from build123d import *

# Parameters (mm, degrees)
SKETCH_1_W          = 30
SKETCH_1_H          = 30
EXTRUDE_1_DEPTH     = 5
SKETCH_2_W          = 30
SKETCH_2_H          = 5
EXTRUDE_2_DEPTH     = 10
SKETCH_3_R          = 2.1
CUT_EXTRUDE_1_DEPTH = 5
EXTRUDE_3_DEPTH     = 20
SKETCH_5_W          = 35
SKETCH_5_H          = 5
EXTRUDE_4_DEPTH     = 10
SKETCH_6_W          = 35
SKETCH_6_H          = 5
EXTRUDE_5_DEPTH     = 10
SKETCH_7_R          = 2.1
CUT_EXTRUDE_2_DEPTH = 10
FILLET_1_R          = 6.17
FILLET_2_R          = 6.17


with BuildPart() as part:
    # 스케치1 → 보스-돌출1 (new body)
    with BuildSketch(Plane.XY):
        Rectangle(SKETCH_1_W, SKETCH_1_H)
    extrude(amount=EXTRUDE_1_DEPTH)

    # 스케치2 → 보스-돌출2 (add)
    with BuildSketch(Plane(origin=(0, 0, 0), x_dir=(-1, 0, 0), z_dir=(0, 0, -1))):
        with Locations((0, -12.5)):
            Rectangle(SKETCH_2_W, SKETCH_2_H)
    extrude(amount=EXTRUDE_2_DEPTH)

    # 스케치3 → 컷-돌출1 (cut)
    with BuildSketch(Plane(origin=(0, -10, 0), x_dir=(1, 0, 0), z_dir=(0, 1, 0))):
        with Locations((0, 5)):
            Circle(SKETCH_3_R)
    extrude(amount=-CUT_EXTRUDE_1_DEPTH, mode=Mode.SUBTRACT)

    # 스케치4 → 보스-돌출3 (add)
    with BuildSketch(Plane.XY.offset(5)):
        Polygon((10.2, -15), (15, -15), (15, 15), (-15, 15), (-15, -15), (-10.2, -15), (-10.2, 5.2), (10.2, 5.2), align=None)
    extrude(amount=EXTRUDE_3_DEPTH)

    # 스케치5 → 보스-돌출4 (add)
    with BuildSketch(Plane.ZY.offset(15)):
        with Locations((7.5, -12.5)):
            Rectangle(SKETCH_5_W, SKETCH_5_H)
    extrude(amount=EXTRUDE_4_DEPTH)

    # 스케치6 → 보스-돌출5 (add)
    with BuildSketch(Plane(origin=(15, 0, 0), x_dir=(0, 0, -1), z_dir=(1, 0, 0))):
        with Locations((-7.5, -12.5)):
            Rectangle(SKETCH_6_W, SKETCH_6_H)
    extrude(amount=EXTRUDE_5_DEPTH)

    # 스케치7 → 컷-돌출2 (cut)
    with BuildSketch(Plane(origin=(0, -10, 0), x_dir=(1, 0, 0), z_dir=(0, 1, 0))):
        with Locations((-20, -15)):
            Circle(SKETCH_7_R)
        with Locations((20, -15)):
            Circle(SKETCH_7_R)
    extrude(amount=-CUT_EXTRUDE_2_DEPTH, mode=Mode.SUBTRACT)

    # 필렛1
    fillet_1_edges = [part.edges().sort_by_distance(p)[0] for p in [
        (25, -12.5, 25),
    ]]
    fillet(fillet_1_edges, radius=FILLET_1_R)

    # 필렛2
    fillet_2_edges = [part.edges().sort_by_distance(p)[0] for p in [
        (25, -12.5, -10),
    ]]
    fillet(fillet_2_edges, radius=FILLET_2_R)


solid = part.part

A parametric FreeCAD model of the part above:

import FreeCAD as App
import Part
import Sketcher
from FreeCAD import Vector
Q = App.Units.Quantity


def edges_at(feature, points):
    """Names of the edges that pass closest to the given points."""
    edges = feature.Shape.Edges
    near = lambda p: min(range(len(edges)), key=lambda i: edges[i].distToShape(Part.Vertex(*p))[0])
    return sorted({f"Edge{near(p) + 1}" for p in points})

doc = App.newDocument("Part")
body = doc.addObject("PartDesign::Body", "Body")

# Sketch on XY plane
sketch1 = doc.addObject("Sketcher::SketchObject", "Sketch")
body.addObject(sketch1)
sketch1.AttachmentSupport = (doc.XY_Plane, [""])
sketch1.MapMode = "FlatFace"
sketch1.addGeometry(Part.LineSegment(Vector(-15, 15, 0), Vector(-15, -15, 0)), False)
sketch1.addGeometry(Part.LineSegment(Vector(-15, -15, 0), Vector(15, -15, 0)), False)
sketch1.addGeometry(Part.LineSegment(Vector(15, -15, 0), Vector(15, 15, 0)), False)
sketch1.addGeometry(Part.LineSegment(Vector(15, 15, 0), Vector(-15, 15, 0)), False)
sketch1.addConstraint(Sketcher.Constraint("Coincident", 0, 2, 1, 1))
sketch1.addConstraint(Sketcher.Constraint("Coincident", 1, 2, 2, 1))
sketch1.addConstraint(Sketcher.Constraint("Coincident", 2, 2, 3, 1))
sketch1.addConstraint(Sketcher.Constraint("Coincident", 3, 2, 0, 1))
sketch1.addConstraint(Sketcher.Constraint("Vertical", 0))
sketch1.addConstraint(Sketcher.Constraint("Horizontal", 1))
sketch1.addConstraint(Sketcher.Constraint("Vertical", 2))
sketch1.addConstraint(Sketcher.Constraint("Horizontal", 3))
sketch1.addConstraint(Sketcher.Constraint("Symmetric", 0, 2, 2, 2, -1, 1))
sketch1.addConstraint(Sketcher.Constraint("Equal", 3, 0))
sketch1.addConstraint(Sketcher.Constraint("DistanceX", 1, 1, 1, 2, Q("30 mm")))
pad1 = doc.addObject("PartDesign::Pad", "Pad")
body.addObject(pad1)
pad1.Profile = sketch1
pad1.Length = 5

# Sketch on XY plane
sketch2 = doc.addObject("Sketcher::SketchObject", "Sketch001")
body.addObject(sketch2)
sketch2.AttachmentSupport = (doc.XY_Plane, [""])
sketch2.MapMode = "FlatFace"
sketch2.addGeometry(Part.LineSegment(Vector(15, -10, 0), Vector(15, -15, 0)), False)
sketch2.addGeometry(Part.LineSegment(Vector(15, -15, 0), Vector(-15, -15, 0)), False)
sketch2.addGeometry(Part.LineSegment(Vector(-15, -15, 0), Vector(-15, -10, 0)), False)
sketch2.addGeometry(Part.LineSegment(Vector(-15, -10, 0), Vector(15, -10, 0)), False)
sketch2.addConstraint(Sketcher.Constraint("Coincident", 0, 2, 1, 1))
sketch2.addConstraint(Sketcher.Constraint("Coincident", 1, 2, 2, 1))
sketch2.addConstraint(Sketcher.Constraint("Coincident", 2, 2, 3, 1))
sketch2.addConstraint(Sketcher.Constraint("Coincident", 3, 2, 0, 1))
sketch2.addConstraint(Sketcher.Constraint("Vertical", 0))
sketch2.addConstraint(Sketcher.Constraint("Horizontal", 1))
sketch2.addConstraint(Sketcher.Constraint("Vertical", 2))
sketch2.addConstraint(Sketcher.Constraint("Horizontal", 3))
sketch2.addConstraint(Sketcher.Constraint("DistanceX", 1, 2, 1, 1, Q("30 mm")))
sketch2.addConstraint(Sketcher.Constraint("DistanceY", 0, 2, 0, 1, Q("5 mm")))
sketch2.addConstraint(Sketcher.Constraint("DistanceX", -1, 1, 0, 2, Q("15 mm")))
sketch2.addConstraint(Sketcher.Constraint("DistanceY", 0, 2, -1, 1, Q("15 mm")))
pad2 = doc.addObject("PartDesign::Pad", "Pad001")
body.addObject(pad2)
pad2.Profile = sketch2
pad2.Length = 10
pad2.Reversed = True

# Sketch on XZ plane
sketch3 = doc.addObject("Sketcher::SketchObject", "Sketch002")
body.addObject(sketch3)
sketch3.AttachmentSupport = (doc.XZ_Plane, [""])
sketch3.MapMode = "FlatFace"
sketch3.AttachmentOffset = App.Placement(Vector(0, 0, 10), App.Rotation())
sketch3.addGeometry(Part.Circle(Vector(0, -5, 0), Vector(0, 0, 1), 2.1), False)
sketch3.addConstraint(Sketcher.Constraint("PointOnObject", 0, 3, -2))
sketch3.addConstraint(Sketcher.Constraint("Diameter", 0, Q("4.2 mm")))
sketch3.addConstraint(Sketcher.Constraint("DistanceY", 0, 3, -1, 1, Q("5 mm")))
pocket1 = doc.addObject("PartDesign::Pocket", "Pocket")
body.addObject(pocket1)
pocket1.Profile = sketch3
pocket1.Length = 5
pocket1.Reversed = True

# Sketch on XY plane
sketch4 = doc.addObject("Sketcher::SketchObject", "Sketch003")
body.addObject(sketch4)
sketch4.AttachmentSupport = (doc.XY_Plane, [""])
sketch4.MapMode = "FlatFace"
sketch4.AttachmentOffset = App.Placement(Vector(0, 0, 5), App.Rotation())
sketch4.addGeometry(Part.LineSegment(Vector(10.2, -15, 0), Vector(15, -15, 0)), False)
sketch4.addGeometry(Part.LineSegment(Vector(15, -15, 0), Vector(15, 15, 0)), False)
sketch4.addGeometry(Part.LineSegment(Vector(15, 15, 0), Vector(-15, 15, 0)), False)
sketch4.addGeometry(Part.LineSegment(Vector(-15, 15, 0), Vector(-15, -15, 0)), False)
sketch4.addGeometry(Part.LineSegment(Vector(-15, -15, 0), Vector(-10.2, -15, 0)), False)
sketch4.addGeometry(Part.LineSegment(Vector(-10.2, -15, 0), Vector(-10.2, 5.2, 0)), False)
sketch4.addGeometry(Part.LineSegment(Vector(-10.2, 5.2, 0), Vector(10.2, 5.2, 0)), False)
sketch4.addGeometry(Part.LineSegment(Vector(10.2, 5.2, 0), Vector(10.2, -15, 0)), False)
sketch4.addConstraint(Sketcher.Constraint("Coincident", 0, 2, 1, 1))
sketch4.addConstraint(Sketcher.Constraint("Coincident", 1, 2, 2, 1))
sketch4.addConstraint(Sketcher.Constraint("Coincident", 2, 2, 3, 1))
sketch4.addConstraint(Sketcher.Constraint("Coincident", 3, 2, 4, 1))
sketch4.addConstraint(Sketcher.Constraint("Coincident", 4, 2, 5, 1))
sketch4.addConstraint(Sketcher.Constraint("Coincident", 5, 2, 6, 1))
sketch4.addConstraint(Sketcher.Constraint("Coincident", 6, 2, 7, 1))
sketch4.addConstraint(Sketcher.Constraint("Coincident", 7, 2, 0, 1))
sketch4.addConstraint(Sketcher.Constraint("Horizontal", 0))
sketch4.addConstraint(Sketcher.Constraint("Vertical", 1))
sketch4.addConstraint(Sketcher.Constraint("Horizontal", 2))
sketch4.addConstraint(Sketcher.Constraint("Vertical", 3))
sketch4.addConstraint(Sketcher.Constraint("Horizontal", 4))
sketch4.addConstraint(Sketcher.Constraint("Vertical", 5))
sketch4.addConstraint(Sketcher.Constraint("Horizontal", 6))
sketch4.addConstraint(Sketcher.Constraint("Vertical", 7))
sketch4.addConstraint(Sketcher.Constraint("Symmetric", 0, 2, 2, 2, -1, 1))
sketch4.addConstraint(Sketcher.Constraint("Symmetric", 4, 2, 7, 2, -2))
sketch4.addConstraint(Sketcher.Constraint("Equal", 2, 1))
sketch4.addConstraint(Sketcher.Constraint("DistanceX", 2, 2, 2, 1, Q("30 mm")))
sketch4.addConstraint(Sketcher.Constraint("DistanceX", 0, 1, 0, 2, Q("4.8 mm")))
sketch4.addConstraint(Sketcher.Constraint("DistanceY", 5, 1, 5, 2, Q("20.2 mm")))
pad3 = doc.addObject("PartDesign::Pad", "Pad002")
body.addObject(pad3)
pad3.Profile = sketch4
pad3.Length = 20

# Sketch on YZ plane
sketch5 = doc.addObject("Sketcher::SketchObject", "Sketch004")
body.addObject(sketch5)
sketch5.AttachmentSupport = (doc.YZ_Plane, [""])
sketch5.MapMode = "FlatFace"
sketch5.AttachmentOffset = App.Placement(Vector(0, 0, -15), App.Rotation())
sketch5.addGeometry(Part.LineSegment(Vector(-10, -10, 0), Vector(-15, -10, 0)), False)
sketch5.addGeometry(Part.LineSegment(Vector(-15, -10, 0), Vector(-15, 25, 0)), False)
sketch5.addGeometry(Part.LineSegment(Vector(-15, 25, 0), Vector(-10, 25, 0)), False)
sketch5.addGeometry(Part.LineSegment(Vector(-10, 25, 0), Vector(-10, -10, 0)), False)
sketch5.addConstraint(Sketcher.Constraint("Coincident", 0, 2, 1, 1))
sketch5.addConstraint(Sketcher.Constraint("Coincident", 1, 2, 2, 1))
sketch5.addConstraint(Sketcher.Constraint("Coincident", 2, 2, 3, 1))
sketch5.addConstraint(Sketcher.Constraint("Coincident", 3, 2, 0, 1))
sketch5.addConstraint(Sketcher.Constraint("Horizontal", 0))
sketch5.addConstraint(Sketcher.Constraint("Vertical", 1))
sketch5.addConstraint(Sketcher.Constraint("Horizontal", 2))
sketch5.addConstraint(Sketcher.Constraint("Vertical", 3))
sketch5.addConstraint(Sketcher.Constraint("DistanceX", 0, 2, 0, 1, Q("5 mm")))
sketch5.addConstraint(Sketcher.Constraint("DistanceY", 1, 1, 1, 2, Q("35 mm")))
sketch5.addConstraint(Sketcher.Constraint("DistanceX", 0, 2, -1, 1, Q("15 mm")))
sketch5.addConstraint(Sketcher.Constraint("DistanceY", 0, 2, -1, 1, Q("10 mm")))
pad4 = doc.addObject("PartDesign::Pad", "Pad003")
body.addObject(pad4)
pad4.Profile = sketch5
pad4.Length = 10
pad4.Reversed = True

# Sketch on YZ plane
sketch6 = doc.addObject("Sketcher::SketchObject", "Sketch005")
body.addObject(sketch6)
sketch6.AttachmentSupport = (doc.YZ_Plane, [""])
sketch6.MapMode = "FlatFace"
sketch6.AttachmentOffset = App.Placement(Vector(0, 0, 15), App.Rotation())
sketch6.addGeometry(Part.LineSegment(Vector(-10, 25, 0), Vector(-15, 25, 0)), False)
sketch6.addGeometry(Part.LineSegment(Vector(-15, 25, 0), Vector(-15, -10, 0)), False)
sketch6.addGeometry(Part.LineSegment(Vector(-15, -10, 0), Vector(-10, -10, 0)), False)
sketch6.addGeometry(Part.LineSegment(Vector(-10, -10, 0), Vector(-10, 25, 0)), False)
sketch6.addConstraint(Sketcher.Constraint("Coincident", 0, 2, 1, 1))
sketch6.addConstraint(Sketcher.Constraint("Coincident", 1, 2, 2, 1))
sketch6.addConstraint(Sketcher.Constraint("Coincident", 2, 2, 3, 1))
sketch6.addConstraint(Sketcher.Constraint("Coincident", 3, 2, 0, 1))
sketch6.addConstraint(Sketcher.Constraint("Horizontal", 0))
sketch6.addConstraint(Sketcher.Constraint("Vertical", 1))
sketch6.addConstraint(Sketcher.Constraint("Horizontal", 2))
sketch6.addConstraint(Sketcher.Constraint("Vertical", 3))
sketch6.addConstraint(Sketcher.Constraint("DistanceX", 0, 2, 0, 1, Q("5 mm")))
sketch6.addConstraint(Sketcher.Constraint("DistanceY", 1, 2, 1, 1, Q("35 mm")))
sketch6.addConstraint(Sketcher.Constraint("DistanceX", 0, 2, -1, 1, Q("15 mm")))
sketch6.addConstraint(Sketcher.Constraint("DistanceY", -1, 1, 0, 2, Q("25 mm")))
pad5 = doc.addObject("PartDesign::Pad", "Pad004")
body.addObject(pad5)
pad5.Profile = sketch6
pad5.Length = 10

# Sketch on XZ plane
sketch7 = doc.addObject("Sketcher::SketchObject", "Sketch006")
body.addObject(sketch7)
sketch7.AttachmentSupport = (doc.XZ_Plane, [""])
sketch7.MapMode = "FlatFace"
sketch7.AttachmentOffset = App.Placement(Vector(0, 0, 10), App.Rotation())
sketch7.addGeometry(Part.Circle(Vector(-20, 15, 0), Vector(0, 0, 1), 2.1), False)
sketch7.addGeometry(Part.Circle(Vector(20, 15, 0), Vector(0, 0, 1), 2.1), False)
sketch7.addConstraint(Sketcher.Constraint("Equal", 0, 1))
sketch7.addConstraint(Sketcher.Constraint("Symmetric", 0, 3, 1, 3, -2))
sketch7.addConstraint(Sketcher.Constraint("Diameter", 0, Q("4.2 mm")))
sketch7.addConstraint(Sketcher.Constraint("DistanceX", 0, 3, -1, 1, Q("20 mm")))
sketch7.addConstraint(Sketcher.Constraint("DistanceY", -1, 1, 0, 3, Q("15 mm")))
pocket2 = doc.addObject("PartDesign::Pocket", "Pocket001")
body.addObject(pocket2)
pocket2.Profile = sketch7
pocket2.Length = 10
pocket2.Reversed = True
doc.recompute()

fillet = doc.addObject("PartDesign::Fillet", "Fillet")
body.addObject(fillet)
fillet.Base = (pocket2, edges_at(pocket2, [(25, -12.5, 25)]))
fillet.Radius = 6.17
doc.recompute()

fillet2 = doc.addObject("PartDesign::Fillet", "Fillet001")
body.addObject(fillet2)
fillet2.Base = (fillet, edges_at(fillet, [(25, -12.5, -10)]))
fillet2.Radius = 6.17

doc.recompute()
